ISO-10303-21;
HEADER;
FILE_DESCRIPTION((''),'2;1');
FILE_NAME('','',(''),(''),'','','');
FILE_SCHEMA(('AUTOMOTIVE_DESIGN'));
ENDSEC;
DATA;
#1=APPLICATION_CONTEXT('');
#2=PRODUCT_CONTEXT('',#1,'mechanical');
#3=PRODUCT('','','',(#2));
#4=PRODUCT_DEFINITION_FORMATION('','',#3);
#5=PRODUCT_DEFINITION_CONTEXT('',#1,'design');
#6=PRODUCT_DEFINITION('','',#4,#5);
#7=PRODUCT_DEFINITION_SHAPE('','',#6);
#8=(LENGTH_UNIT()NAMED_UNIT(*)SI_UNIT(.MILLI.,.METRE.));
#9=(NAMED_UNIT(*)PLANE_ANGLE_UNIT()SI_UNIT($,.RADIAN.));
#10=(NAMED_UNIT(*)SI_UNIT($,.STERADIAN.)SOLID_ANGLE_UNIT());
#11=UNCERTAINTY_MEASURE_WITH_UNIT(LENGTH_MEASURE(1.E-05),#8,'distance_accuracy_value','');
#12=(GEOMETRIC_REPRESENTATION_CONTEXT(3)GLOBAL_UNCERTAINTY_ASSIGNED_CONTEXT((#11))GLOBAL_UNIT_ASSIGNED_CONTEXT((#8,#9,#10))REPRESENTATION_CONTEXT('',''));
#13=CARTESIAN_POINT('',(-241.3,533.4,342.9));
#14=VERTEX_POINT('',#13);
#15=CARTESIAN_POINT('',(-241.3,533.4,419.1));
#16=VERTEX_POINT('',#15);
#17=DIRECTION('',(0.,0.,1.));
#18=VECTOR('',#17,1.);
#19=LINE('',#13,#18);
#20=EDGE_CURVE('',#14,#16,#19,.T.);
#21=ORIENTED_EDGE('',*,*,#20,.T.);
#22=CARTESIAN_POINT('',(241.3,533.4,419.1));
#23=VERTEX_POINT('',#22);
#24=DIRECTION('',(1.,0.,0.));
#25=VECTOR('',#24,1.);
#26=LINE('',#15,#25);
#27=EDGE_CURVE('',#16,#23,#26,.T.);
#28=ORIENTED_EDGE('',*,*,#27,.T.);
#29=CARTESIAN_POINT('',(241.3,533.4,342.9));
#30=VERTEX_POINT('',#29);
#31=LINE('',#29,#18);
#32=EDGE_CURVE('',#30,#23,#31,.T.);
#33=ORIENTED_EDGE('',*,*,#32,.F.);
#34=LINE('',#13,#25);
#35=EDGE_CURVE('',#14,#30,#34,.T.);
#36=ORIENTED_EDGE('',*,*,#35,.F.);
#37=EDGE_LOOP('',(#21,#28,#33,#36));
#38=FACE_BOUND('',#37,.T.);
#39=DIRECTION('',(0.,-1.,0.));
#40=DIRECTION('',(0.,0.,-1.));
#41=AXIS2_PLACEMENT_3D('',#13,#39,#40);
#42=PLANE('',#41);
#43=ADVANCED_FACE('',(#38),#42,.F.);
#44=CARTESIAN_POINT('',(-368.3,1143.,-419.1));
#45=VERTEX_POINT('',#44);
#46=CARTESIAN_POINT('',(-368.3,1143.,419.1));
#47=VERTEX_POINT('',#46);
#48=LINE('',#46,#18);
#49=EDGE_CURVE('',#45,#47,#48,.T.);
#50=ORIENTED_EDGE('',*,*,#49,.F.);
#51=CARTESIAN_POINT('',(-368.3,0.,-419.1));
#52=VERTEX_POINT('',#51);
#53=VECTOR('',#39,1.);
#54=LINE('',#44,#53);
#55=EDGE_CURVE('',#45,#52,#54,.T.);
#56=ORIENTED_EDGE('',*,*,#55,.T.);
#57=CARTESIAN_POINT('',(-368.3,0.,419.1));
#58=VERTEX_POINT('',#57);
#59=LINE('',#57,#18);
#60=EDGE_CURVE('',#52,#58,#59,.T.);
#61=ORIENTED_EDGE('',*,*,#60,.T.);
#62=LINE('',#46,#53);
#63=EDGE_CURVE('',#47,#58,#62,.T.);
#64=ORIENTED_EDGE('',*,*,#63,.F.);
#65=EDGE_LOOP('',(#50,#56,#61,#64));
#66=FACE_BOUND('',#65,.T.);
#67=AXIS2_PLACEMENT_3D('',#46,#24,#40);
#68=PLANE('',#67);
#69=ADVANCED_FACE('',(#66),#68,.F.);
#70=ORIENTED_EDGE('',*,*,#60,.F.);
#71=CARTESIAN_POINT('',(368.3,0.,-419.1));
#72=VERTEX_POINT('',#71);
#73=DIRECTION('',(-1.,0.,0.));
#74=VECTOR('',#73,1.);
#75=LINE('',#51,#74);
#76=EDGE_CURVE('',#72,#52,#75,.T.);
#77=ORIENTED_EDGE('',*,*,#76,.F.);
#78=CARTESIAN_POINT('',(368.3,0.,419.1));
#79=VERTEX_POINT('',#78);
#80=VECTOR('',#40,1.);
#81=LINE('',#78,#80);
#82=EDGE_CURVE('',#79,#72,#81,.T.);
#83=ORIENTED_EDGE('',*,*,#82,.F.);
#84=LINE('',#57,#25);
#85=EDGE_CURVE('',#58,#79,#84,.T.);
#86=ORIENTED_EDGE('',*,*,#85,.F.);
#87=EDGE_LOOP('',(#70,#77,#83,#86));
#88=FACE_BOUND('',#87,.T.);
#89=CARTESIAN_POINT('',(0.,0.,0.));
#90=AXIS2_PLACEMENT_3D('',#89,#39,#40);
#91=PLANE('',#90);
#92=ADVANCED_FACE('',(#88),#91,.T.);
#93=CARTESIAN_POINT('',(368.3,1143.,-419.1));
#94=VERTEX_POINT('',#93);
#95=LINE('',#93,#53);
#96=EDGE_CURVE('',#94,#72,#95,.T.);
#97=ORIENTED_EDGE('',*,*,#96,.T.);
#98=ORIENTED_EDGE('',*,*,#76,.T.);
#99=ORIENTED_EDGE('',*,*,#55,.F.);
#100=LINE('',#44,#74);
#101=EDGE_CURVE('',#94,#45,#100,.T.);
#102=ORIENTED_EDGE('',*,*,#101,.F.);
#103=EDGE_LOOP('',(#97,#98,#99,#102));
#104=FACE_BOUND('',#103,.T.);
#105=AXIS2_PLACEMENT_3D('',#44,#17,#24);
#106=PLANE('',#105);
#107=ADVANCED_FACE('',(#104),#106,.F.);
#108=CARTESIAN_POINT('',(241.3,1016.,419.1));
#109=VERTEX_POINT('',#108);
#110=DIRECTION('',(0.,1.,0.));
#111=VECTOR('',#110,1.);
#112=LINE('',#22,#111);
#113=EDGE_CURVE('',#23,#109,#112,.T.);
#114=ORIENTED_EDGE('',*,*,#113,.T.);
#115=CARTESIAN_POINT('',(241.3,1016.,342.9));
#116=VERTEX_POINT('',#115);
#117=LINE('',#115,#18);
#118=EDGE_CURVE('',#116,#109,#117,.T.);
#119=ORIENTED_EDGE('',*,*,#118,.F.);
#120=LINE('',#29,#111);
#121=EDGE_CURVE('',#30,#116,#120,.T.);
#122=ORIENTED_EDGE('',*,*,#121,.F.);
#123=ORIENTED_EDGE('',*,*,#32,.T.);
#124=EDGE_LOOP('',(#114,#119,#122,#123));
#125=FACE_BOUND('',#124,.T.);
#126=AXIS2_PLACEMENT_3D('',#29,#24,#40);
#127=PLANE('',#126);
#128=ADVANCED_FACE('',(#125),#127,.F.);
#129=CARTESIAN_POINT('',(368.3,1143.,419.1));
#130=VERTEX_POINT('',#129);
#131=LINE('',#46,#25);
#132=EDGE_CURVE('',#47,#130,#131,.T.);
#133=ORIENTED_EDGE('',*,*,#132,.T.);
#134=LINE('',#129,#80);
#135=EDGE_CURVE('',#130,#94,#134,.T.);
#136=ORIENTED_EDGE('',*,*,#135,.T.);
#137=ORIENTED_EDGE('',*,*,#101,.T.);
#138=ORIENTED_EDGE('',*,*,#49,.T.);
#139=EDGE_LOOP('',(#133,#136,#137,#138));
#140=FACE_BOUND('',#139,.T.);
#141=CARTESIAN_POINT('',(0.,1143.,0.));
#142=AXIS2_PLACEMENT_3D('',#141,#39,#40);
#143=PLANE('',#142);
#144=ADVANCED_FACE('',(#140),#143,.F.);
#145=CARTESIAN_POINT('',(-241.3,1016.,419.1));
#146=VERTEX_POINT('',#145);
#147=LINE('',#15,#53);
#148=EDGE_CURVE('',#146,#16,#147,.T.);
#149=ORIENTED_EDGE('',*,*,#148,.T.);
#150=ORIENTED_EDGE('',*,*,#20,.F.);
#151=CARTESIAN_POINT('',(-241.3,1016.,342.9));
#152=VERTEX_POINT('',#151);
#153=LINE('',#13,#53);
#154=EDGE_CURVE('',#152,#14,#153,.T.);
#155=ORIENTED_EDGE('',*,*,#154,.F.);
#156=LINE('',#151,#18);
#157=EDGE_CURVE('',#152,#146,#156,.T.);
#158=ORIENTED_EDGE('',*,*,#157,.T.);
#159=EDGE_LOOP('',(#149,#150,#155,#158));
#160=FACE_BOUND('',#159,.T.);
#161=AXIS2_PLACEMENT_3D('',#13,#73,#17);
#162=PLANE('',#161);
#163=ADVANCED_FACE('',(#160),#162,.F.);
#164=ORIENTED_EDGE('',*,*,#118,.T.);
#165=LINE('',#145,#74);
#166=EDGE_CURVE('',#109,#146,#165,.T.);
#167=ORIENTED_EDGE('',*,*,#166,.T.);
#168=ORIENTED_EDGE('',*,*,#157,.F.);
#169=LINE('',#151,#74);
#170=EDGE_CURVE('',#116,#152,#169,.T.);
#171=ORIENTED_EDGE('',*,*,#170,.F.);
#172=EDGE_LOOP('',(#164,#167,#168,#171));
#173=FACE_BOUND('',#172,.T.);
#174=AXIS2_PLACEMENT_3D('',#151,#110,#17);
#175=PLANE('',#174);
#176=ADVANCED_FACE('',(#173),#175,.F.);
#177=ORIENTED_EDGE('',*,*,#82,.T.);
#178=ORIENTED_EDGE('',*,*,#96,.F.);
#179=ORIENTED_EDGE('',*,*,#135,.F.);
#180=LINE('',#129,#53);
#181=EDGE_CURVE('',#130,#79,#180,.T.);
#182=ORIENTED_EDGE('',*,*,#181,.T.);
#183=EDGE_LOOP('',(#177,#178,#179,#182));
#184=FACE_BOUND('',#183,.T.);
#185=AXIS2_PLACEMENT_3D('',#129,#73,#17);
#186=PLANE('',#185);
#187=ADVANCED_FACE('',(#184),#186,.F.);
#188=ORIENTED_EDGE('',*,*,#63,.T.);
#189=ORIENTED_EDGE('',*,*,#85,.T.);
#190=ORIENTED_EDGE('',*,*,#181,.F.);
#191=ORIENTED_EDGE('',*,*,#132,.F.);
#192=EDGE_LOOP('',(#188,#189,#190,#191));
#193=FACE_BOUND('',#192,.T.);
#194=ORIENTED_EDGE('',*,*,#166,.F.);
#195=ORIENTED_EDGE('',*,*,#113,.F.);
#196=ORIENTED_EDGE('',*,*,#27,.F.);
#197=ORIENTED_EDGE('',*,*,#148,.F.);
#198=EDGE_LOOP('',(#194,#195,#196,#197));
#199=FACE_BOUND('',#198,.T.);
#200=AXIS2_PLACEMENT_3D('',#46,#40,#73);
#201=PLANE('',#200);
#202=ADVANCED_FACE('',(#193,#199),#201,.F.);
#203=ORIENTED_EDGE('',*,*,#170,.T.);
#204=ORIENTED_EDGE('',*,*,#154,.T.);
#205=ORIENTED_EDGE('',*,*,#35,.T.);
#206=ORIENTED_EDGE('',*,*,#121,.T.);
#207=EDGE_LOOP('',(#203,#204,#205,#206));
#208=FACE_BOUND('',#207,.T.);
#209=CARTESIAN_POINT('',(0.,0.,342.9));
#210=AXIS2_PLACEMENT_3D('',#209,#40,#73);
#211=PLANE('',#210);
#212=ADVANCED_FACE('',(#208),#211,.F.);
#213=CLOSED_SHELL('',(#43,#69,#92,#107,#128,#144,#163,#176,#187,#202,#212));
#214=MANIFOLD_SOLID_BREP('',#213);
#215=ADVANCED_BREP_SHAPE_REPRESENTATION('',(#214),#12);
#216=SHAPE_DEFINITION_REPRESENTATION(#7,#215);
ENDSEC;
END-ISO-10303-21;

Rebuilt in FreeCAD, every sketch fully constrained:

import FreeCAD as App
import Part
import Sketcher

V = App.Vector
Q = App.Units.Quantity


def add_polygon(sketch, points):
    """Adds a closed chain of lines whose ends are joined by coincident constraints."""
    first, n = sketch.GeometryCount, len(points)
    for a, b in zip(points, points[1:] + points[:1]):
        sketch.addGeometry(Part.LineSegment(App.Vector(*a, 0), App.Vector(*b, 0)), False)
    for i in range(n):
        sketch.addConstraint(Sketcher.Constraint("Coincident", first + i, 2, first + (i + 1) % n, 1))

doc = App.newDocument("Part")
body = doc.addObject("PartDesign::Body", "Body")

sketch1 = doc.addObject("Sketcher::SketchObject", "Sketch")
body.addObject(sketch1)
sketch1.AttachmentSupport = (doc.XZ_Plane, [""])
sketch1.MapMode = "FlatFace"
add_polygon(sketch1, [(-368, -419), (-368, 419), (368, 419), (368, -419)])
sketch1.addConstraint([
    Sketcher.Constraint("Vertical", 0),
    Sketcher.Constraint("Horizontal", 1),
    Sketcher.Constraint("Vertical", 2),
    Sketcher.Constraint("Horizontal", 3),
    Sketcher.Constraint("Symmetric", 0, 2, 2, 2, -1, 1),
    Sketcher.Constraint("DistanceX", 1, 1, 1, 2, Q("29 in")),
    Sketcher.Constraint("DistanceY", 0, 1, 0, 2, Q("33 in")),
])
pad1 = doc.addObject("PartDesign::Pad", "Pad")
body.addObject(pad1)
pad1.Profile = sketch1
pad1.Length = Q("45 in")
pad1.Reversed = True

sketch2 = doc.addObject("Sketcher::SketchObject", "Sketch001")
body.addObject(sketch2)
sketch2.AttachmentSupport = (doc.XY_Plane, [""])
sketch2.MapMode = "FlatFace"
sketch2.AttachmentOffset = App.Placement(V(0, 0, 16.5 * 25.4), App.Rotation())
add_polygon(sketch2, [(-241, 1016), (-241, 533), (241, 533), (241, 1016)])
sketch2.addConstraint([
    Sketcher.Constraint("Vertical", 0),
    Sketcher.Constraint("Horizontal", 1),
    Sketcher.Constraint("Vertical", 2),
    Sketcher.Constraint("Horizontal", 3),
    Sketcher.Constraint("Equal", 3, 0),
    Sketcher.Constraint("DistanceX", 1, 1, 1, 2, Q("19 in")),
    Sketcher.Constraint("DistanceY", -1, 1, 0, 2, Q("21 in")),
    Sketcher.Constraint("DistanceX", 0, 2, -1, 1, Q("9.5 in")),
])
pocket1 = doc.addObject("PartDesign::Pocket", "Pocket")
body.addObject(pocket1)
pocket1.Profile = sketch2
pocket1.Length = Q("3 in")

doc.recompute()
